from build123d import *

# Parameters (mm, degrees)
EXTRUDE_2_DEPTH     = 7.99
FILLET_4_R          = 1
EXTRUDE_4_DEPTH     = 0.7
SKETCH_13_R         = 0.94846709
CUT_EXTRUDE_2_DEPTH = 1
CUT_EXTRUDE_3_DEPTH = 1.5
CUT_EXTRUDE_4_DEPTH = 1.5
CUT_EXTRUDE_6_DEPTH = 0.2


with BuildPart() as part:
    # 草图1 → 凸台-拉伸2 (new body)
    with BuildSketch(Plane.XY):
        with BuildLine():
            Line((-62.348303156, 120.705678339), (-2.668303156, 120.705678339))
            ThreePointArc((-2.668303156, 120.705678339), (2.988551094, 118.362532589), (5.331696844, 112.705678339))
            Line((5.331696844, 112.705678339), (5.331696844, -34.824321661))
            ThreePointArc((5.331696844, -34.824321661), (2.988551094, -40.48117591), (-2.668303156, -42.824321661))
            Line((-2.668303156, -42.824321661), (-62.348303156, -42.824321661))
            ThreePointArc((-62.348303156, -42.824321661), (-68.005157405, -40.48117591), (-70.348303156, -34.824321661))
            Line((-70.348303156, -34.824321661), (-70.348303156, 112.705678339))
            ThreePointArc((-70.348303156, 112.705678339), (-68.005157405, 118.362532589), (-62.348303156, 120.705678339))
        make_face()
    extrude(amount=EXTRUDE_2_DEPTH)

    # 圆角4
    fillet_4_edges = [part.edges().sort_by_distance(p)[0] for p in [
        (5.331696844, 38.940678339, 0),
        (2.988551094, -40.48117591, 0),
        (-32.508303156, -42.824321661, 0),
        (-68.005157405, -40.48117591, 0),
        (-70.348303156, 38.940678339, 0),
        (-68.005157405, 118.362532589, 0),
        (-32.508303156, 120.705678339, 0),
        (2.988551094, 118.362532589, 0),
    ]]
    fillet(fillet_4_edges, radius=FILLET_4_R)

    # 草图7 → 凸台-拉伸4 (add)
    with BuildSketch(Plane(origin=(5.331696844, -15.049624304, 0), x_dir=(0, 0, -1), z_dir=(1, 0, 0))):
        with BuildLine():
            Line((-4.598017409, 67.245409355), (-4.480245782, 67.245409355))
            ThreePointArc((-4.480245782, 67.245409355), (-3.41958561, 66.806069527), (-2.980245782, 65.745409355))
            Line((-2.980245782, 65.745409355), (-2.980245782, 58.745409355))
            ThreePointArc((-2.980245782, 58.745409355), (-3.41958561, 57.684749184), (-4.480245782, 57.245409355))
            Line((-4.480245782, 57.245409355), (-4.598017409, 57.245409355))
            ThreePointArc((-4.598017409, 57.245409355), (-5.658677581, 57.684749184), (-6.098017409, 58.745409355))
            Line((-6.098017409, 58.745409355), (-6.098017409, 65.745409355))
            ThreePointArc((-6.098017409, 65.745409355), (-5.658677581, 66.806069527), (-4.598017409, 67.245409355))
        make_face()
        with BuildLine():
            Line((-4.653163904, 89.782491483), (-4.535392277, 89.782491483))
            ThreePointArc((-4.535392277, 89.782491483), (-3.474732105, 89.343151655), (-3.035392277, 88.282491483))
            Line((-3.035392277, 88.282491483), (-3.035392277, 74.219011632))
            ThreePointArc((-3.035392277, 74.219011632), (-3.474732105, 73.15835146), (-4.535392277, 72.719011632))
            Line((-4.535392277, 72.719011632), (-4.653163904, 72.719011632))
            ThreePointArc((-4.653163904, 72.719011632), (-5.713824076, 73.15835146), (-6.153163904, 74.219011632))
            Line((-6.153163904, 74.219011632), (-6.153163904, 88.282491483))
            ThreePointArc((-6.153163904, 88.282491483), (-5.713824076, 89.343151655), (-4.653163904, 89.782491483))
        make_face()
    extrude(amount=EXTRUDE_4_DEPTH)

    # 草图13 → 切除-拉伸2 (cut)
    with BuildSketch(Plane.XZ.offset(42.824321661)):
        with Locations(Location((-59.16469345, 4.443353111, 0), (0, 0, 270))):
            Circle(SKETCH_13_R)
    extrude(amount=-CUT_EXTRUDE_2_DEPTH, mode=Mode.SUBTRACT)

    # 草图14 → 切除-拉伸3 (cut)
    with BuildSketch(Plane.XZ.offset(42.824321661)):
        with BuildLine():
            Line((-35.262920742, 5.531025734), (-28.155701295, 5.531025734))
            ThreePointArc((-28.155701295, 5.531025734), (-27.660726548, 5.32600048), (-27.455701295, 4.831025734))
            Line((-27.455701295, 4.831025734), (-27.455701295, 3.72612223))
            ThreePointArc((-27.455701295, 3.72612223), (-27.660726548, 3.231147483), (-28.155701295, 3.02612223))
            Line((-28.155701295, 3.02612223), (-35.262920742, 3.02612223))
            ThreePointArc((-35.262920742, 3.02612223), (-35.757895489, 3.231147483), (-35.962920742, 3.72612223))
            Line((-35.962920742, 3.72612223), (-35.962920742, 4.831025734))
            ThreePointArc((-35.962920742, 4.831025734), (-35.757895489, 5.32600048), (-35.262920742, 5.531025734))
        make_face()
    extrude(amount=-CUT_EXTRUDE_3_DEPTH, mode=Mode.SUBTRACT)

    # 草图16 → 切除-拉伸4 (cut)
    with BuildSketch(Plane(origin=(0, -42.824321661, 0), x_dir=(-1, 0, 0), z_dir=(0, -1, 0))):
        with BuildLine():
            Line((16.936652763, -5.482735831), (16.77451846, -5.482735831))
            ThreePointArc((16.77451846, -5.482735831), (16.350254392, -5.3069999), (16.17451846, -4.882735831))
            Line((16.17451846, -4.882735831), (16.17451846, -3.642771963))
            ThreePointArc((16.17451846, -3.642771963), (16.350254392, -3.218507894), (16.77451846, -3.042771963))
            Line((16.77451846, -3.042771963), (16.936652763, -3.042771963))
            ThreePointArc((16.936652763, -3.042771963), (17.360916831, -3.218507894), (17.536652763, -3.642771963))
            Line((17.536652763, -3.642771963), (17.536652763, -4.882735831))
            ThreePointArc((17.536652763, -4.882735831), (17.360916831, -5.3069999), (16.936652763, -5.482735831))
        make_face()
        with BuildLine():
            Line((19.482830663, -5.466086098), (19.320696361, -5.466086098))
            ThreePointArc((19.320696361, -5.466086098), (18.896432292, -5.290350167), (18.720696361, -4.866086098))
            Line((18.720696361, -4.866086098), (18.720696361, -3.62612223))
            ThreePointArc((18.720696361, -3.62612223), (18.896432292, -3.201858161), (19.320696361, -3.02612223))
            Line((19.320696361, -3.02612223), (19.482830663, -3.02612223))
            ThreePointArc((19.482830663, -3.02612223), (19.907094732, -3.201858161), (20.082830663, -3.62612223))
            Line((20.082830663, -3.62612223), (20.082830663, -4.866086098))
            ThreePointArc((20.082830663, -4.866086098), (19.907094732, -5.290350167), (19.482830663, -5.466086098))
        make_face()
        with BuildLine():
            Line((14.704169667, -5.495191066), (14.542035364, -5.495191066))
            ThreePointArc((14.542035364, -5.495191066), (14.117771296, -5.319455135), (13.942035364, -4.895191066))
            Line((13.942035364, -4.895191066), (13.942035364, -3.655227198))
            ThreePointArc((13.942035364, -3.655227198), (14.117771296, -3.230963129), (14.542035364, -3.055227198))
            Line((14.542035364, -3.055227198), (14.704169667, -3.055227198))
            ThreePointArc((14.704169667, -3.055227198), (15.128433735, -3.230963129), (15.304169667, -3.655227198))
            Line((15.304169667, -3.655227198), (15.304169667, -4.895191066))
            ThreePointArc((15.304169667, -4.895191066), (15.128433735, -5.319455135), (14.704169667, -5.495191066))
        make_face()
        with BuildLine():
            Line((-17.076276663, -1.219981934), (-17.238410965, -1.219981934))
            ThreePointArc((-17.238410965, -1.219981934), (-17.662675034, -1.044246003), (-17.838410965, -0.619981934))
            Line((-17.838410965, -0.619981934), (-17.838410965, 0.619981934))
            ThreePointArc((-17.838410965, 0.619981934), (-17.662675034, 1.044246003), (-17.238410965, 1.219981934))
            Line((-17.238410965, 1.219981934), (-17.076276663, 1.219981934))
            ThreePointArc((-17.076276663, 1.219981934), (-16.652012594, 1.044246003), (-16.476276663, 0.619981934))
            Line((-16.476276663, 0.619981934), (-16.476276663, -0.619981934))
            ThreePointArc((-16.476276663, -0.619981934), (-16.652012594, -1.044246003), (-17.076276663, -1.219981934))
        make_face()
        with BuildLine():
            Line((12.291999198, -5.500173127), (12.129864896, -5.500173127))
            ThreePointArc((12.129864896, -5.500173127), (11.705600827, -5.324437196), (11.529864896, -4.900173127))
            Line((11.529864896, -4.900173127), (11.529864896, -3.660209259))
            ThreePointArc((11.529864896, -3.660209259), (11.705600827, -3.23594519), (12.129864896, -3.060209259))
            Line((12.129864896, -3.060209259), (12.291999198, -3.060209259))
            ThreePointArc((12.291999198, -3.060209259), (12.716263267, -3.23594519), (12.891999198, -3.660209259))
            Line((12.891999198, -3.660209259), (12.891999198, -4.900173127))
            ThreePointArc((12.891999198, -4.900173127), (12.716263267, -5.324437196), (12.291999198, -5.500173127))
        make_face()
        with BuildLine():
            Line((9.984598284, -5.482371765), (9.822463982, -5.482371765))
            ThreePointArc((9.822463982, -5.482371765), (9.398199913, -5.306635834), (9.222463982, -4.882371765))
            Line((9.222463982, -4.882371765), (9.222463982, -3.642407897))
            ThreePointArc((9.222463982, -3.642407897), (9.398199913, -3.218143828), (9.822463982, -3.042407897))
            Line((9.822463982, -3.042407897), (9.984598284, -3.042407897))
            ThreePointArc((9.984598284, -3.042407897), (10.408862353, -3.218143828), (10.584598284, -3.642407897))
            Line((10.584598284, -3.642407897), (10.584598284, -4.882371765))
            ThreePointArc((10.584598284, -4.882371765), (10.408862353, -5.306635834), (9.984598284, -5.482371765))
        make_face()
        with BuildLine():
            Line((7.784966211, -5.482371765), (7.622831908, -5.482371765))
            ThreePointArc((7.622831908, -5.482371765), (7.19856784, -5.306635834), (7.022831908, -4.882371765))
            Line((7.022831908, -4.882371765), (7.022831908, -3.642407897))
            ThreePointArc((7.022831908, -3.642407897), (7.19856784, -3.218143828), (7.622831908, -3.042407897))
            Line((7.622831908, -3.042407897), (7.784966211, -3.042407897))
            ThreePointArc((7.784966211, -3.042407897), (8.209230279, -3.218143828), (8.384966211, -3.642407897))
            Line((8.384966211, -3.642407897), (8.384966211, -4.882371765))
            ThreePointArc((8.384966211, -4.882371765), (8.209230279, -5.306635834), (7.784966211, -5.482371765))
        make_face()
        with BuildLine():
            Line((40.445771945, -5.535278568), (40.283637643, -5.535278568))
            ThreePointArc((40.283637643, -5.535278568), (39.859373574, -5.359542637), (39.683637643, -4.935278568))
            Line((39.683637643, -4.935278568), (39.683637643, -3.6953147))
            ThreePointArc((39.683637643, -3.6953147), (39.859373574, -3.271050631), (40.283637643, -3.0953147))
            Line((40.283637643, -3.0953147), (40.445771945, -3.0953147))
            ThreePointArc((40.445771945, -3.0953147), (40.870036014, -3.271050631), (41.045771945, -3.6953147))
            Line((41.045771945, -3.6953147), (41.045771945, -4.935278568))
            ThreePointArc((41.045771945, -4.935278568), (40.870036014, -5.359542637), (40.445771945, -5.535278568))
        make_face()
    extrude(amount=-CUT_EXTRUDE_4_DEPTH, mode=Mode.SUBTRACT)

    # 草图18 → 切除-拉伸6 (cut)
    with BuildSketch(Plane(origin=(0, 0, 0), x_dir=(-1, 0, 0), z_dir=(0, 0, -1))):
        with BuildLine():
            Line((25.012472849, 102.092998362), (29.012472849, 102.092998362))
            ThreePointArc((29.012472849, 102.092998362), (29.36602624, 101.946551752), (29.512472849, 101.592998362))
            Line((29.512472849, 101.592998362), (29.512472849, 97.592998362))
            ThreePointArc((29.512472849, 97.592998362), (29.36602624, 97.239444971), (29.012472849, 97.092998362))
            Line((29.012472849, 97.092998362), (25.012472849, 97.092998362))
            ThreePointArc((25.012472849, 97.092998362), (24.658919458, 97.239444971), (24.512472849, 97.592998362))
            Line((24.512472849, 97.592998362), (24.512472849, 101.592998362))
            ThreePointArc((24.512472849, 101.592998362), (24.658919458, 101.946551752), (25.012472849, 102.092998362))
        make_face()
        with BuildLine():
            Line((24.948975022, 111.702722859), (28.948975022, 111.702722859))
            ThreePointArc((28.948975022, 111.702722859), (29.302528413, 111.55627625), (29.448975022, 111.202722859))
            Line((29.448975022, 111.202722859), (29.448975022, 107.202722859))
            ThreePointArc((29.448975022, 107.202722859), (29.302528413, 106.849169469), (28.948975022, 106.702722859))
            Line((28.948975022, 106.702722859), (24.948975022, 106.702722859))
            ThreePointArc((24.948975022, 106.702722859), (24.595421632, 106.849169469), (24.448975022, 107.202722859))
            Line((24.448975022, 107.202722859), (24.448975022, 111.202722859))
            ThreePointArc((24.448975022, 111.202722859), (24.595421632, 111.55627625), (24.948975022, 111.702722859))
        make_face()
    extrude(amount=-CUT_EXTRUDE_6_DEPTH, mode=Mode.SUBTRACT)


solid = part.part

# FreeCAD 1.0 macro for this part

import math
import FreeCAD as App
import Part
import Sketcher
from FreeCAD import Vector
Q = App.Units.Quantity


def edges_at(feature, points):
    """Names of the edges that pass closest to the given points."""
    edges = feature.Shape.Edges
    near = lambda p: min(range(len(edges)), key=lambda i: edges[i].distToShape(Part.Vertex(*p))[0])
    return sorted({f"Edge{near(p) + 1}" for p in points})

doc = App.newDocument("Part")
params = doc.addObject("Spreadsheet::Sheet", "Params")
for row, (alias, value) in enumerate([
    ("sketch1_radius", "8 mm"),
    ("sketch1_width", "59.68 mm"),
    ("sketch1_height", "147.53 mm"),
    ("pad1_length", "7.99 mm"),
    ("fillet_radius", "1 mm"),
    ("sketch2_radius", "1.5 mm"),
    ("sketch2_width", "7 mm"),
    ("pad2_length", "0.7 mm"),
    ("pocket1_length", "1 mm"),
    ("sketch4_radius", "0.7 mm"),
    ("pocket2_length", "1.5 mm"),
    ("sketch5_radius", "0.6 mm"),
    ("pocket3_length", "1.5 mm"),
    ("sketch6_radius", "0.5 mm"),
    ("sketch6_width", "4 mm"),
    ("pocket4_length", "0.2 mm"),
], start=1):
    params.set(f"A{row}", alias)
    params.set(f"B{row}", "=" + value)
    params.setAlias(f"B{row}", alias)

body = doc.addObject("PartDesign::Body", "Body")

# Sketch on XY plane
sketch1 = doc.addObject("Sketcher::SketchObject", "Sketch")
body.addObject(sketch1)
sketch1.AttachmentSupport = (doc.XY_Plane, [""])
sketch1.MapMode = "FlatFace"
sketch1.addGeometry([
    Part.LineSegment(Vector(-2.668303, 120.705678, 0), Vector(-62.348303, 120.705678, 0)),  # 0
    Part.ArcOfCircle(Part.Circle(Vector(-62.348303, 112.705678, 0), Vector(0, 0, 1), 8), math.radians(90), math.radians(180)),  # 1
    Part.LineSegment(Vector(-70.348303, 112.705678, 0), Vector(-70.348303, -34.824322, 0)),  # 2
    Part.ArcOfCircle(Part.Circle(Vector(-62.348303, -34.824322, 0), Vector(0, 0, 1), 8), math.radians(-180), math.radians(-90)),  # 3
    Part.LineSegment(Vector(-62.348303, -42.824322, 0), Vector(-2.668303, -42.824322, 0)),  # 4
    Part.ArcOfCircle(Part.Circle(Vector(-2.668303, -34.824322, 0), Vector(0, 0, 1), 8), math.radians(-90), math.radians(0)),  # 5
    Part.LineSegment(Vector(5.331697, -34.824322, 0), Vector(5.331697, 112.705678, 0)),  # 6
    Part.ArcOfCircle(Part.Circle(Vector(-2.668303, 112.705678, 0), Vector(0, 0, 1), 8), math.radians(0), math.radians(90)),  # 7
], False)
sketch1.addConstraint([
    Sketcher.Constraint("Tangent", 0, 2, 1, 1),
    Sketcher.Constraint("Tangent", 1, 2, 2, 1),
    Sketcher.Constraint("Tangent", 2, 2, 3, 1),
    Sketcher.Constraint("Tangent", 3, 2, 4, 1),
    Sketcher.Constraint("Tangent", 4, 2, 5, 1),
    Sketcher.Constraint("Tangent", 5, 2, 6, 1),
    Sketcher.Constraint("Tangent", 6, 2, 7, 1),
    Sketcher.Constraint("Tangent", 7, 2, 0, 1),
    Sketcher.Constraint("Horizontal", 0),
    Sketcher.Constraint("Vertical", 2),
    Sketcher.Constraint("Horizontal", 4),
    Sketcher.Constraint("Vertical", 6),
    Sketcher.Constraint("Equal", 1, 3),
    Sketcher.Constraint("Equal", 3, 5),
    Sketcher.Constraint("Equal", 5, 7),
    Sketcher.Constraint("Radius", 1, Q("8 mm")),
    Sketcher.Constraint("DistanceX", 0, 2, 0, 1, Q("59.68 mm")),
    Sketcher.Constraint("DistanceY", 2, 2, 2, 1, Q("147.53 mm")),
    Sketcher.Constraint("DistanceY", -1, 1, 1, 3, Q("112.705678 mm")),
    Sketcher.Constraint("DistanceX", 1, 3, -1, 1, Q("62.348303 mm")),
])
sketch1.setExpression("Constraints[15]", "Params.sketch1_radius")
sketch1.setExpression("Constraints[16]", "Params.sketch1_width")
sketch1.setExpression("Constraints[17]", "Params.sketch1_height")
pad1 = doc.addObject("PartDesign::Pad", "Pad")
body.addObject(pad1)
pad1.Profile = sketch1
pad1.setExpression("Length", "Params.pad1_length")
doc.recompute()

fillet = doc.addObject("PartDesign::Fillet", "Fillet")
body.addObject(fillet)
fillet.Base = (pad1, edges_at(pad1, [
    (5.332, 38.941, 0),
    (2.989, -40.481, 0),
    (-32.508, -42.824, 0),
    (-68.005, -40.481, 0),
    (-70.348, 38.941, 0),
    (-68.005, 118.363, 0),
    (-32.508, 120.706, 0),
    (2.989, 118.363, 0),
]))
fillet.setExpression("Radius", "Params.fillet_radius")

# Sketch on YZ plane
sketch2 = doc.addObject("Sketcher::SketchObject", "Sketch001")
body.addObject(sketch2)
sketch2.AttachmentSupport = (doc.YZ_Plane, [""])
sketch2.MapMode = "FlatFace"
sketch2.AttachmentOffset = App.Placement(Vector(0, 0, 5.331697), App.Rotation())
sketch2.addGeometry([
    Part.LineSegment(Vector(52.195785, 4.480246, 0), Vector(52.195785, 4.598017, 0)),  # 0
    Part.ArcOfCircle(Part.Circle(Vector(50.695785, 4.598017, 0), Vector(0, 0, 1), 1.5), math.radians(0), math.radians(90)),  # 1
    Part.LineSegment(Vector(50.695785, 6.098017, 0), Vector(43.695785, 6.098017, 0)),  # 2
    Part.ArcOfCircle(Part.Circle(Vector(43.695785, 4.598017, 0), Vector(0, 0, 1), 1.5), math.radians(90), math.radians(180)),  # 3
    Part.LineSegment(Vector(42.195785, 4.598017, 0), Vector(42.195785, 4.480246, 0)),  # 4
    Part.ArcOfCircle(Part.Circle(Vector(43.695785, 4.480246, 0), Vector(0, 0, 1), 1.5), math.radians(-180), math.radians(-90)),  # 5
    Part.LineSegment(Vector(43.695785, 2.980246, 0), Vector(50.695785, 2.980246, 0)),  # 6
    Part.ArcOfCircle(Part.Circle(Vector(50.695785, 4.480246, 0), Vector(0, 0, 1), 1.5), math.radians(-90), math.radians(0)),  # 7
    Part.LineSegment(Vector(74.732867, 4.535392, 0), Vector(74.732867, 4.653164, 0)),  # 8
    Part.ArcOfCircle(Part.Circle(Vector(73.232867, 4.653164, 0), Vector(0, 0, 1), 1.5), math.radians(0), math.radians(90)),  # 9
    Part.LineSegment(Vector(73.232867, 6.153164, 0), Vector(59.169387, 6.153164, 0)),  # 10
    Part.ArcOfCircle(Part.Circle(Vector(59.169387, 4.653164, 0), Vector(0, 0, 1), 1.5), math.radians(90), math.radians(180)),  # 11
    Part.LineSegment(Vector(57.669387, 4.653164, 0), Vector(57.669387, 4.535392, 0)),  # 12
    Part.ArcOfCircle(Part.Circle(Vector(59.169387, 4.535392, 0), Vector(0, 0, 1), 1.5), math.radians(180), math.radians(270)),  # 13
    Part.LineSegment(Vector(59.169387, 3.035392, 0), Vector(73.232867, 3.035392, 0)),  # 14
    Part.ArcOfCircle(Part.Circle(Vector(73.232867, 4.535392, 0), Vector(0, 0, 1), 1.5), math.radians(-90), math.radians(0)),  # 15
], False)
sketch2.addConstraint([
    Sketcher.Constraint("Tangent", 0, 2, 1, 1),
    Sketcher.Constraint("Tangent", 1, 2, 2, 1),
    Sketcher.Constraint("Tangent", 2, 2, 3, 1),
    Sketcher.Constraint("Tangent", 3, 2, 4, 1),
    Sketcher.Constraint("Tangent", 4, 2, 5, 1),
    Sketcher.Constraint("Tangent", 5, 2, 6, 1),
    Sketcher.Constraint("Tangent", 6, 2, 7, 1),
    Sketcher.Constraint("Tangent", 7, 2, 0, 1),
    Sketcher.Constraint("Tangent", 8, 2, 9, 1),
    Sketcher.Constraint("Tangent", 9, 2, 10, 1),
    Sketcher.Constraint("Tangent", 10, 2, 11, 1),
    Sketcher.Constraint("Tangent", 11, 2, 12, 1),
    Sketcher.Constraint("Tangent", 12, 2, 13, 1),
    Sketcher.Constraint("Tangent", 13, 2, 14, 1),
    Sketcher.Constraint("Tangent", 14, 2, 15, 1),
    Sketcher.Constraint("Tangent", 15, 2, 8, 1),
    Sketcher.Constraint("Vertical", 0),
    Sketcher.Constraint("Horizontal", 2),
    Sketcher.Constraint("Vertical", 4),
    Sketcher.Constraint("Horizontal", 6),
    Sketcher.Constraint("Vertical", 8),
    Sketcher.Constraint("Horizontal", 10),
    Sketcher.Constraint("Vertical", 12),
    Sketcher.Constraint("Horizontal", 14),
    Sketcher.Constraint("Equal", 1, 3),
    Sketcher.Constraint("Equal", 3, 5),
    Sketcher.Constraint("Equal", 5, 7),
    Sketcher.Constraint("Equal", 7, 9),
    Sketcher.Constraint("Equal", 9, 11),
    Sketcher.Constraint("Equal", 11, 13),
    Sketcher.Constraint("Equal", 13, 15),
    Sketcher.Constraint("Equal", 4, 8),
    Sketcher.Constraint("Radius", 1, Q("1.5 mm")),
    Sketcher.Constraint("DistanceX", 2, 2, 2, 1, Q("7 mm")),
    Sketcher.Constraint("DistanceX", 10, 2, 10, 1, Q("14.06348 mm")),
    Sketcher.Constraint("DistanceY", 0, 1, 0, 2, Q("0.117772 mm")),
    Sketcher.Constraint("DistanceY", 7, 3, 9, 3, Q("0.172918 mm")),
    Sketcher.Constraint("DistanceX", -1, 1, 1, 3, Q("50.695785 mm")),
    Sketcher.Constraint("DistanceY", -1, 1, 1, 3, Q("4.598017 mm")),
    Sketcher.Constraint("DistanceX", -1, 1, 9, 3, Q("73.232867 mm")),
])
sketch2.setExpression("Constraints[32]", "Params.sketch2_radius")
sketch2.setExpression("Constraints[33]", "Params.sketch2_width")
pad2 = doc.addObject("PartDesign::Pad", "Pad001")
body.addObject(pad2)
pad2.Profile = sketch2
pad2.setExpression("Length", "Params.pad2_length")

# Sketch on XZ plane
sketch3 = doc.addObject("Sketcher::SketchObject", "Sketch002")
body.addObject(sketch3)
sketch3.AttachmentSupport = (doc.XZ_Plane, [""])
sketch3.MapMode = "FlatFace"
sketch3.AttachmentOffset = App.Placement(Vector(0, 0, 42.824322), App.Rotation())
sketch3.addGeometry(Part.Circle(Vector(-59.164693, 4.443353, 0), Vector(0, 0, 1), 0.948467), False)
sketch3.addConstraint([
    Sketcher.Constraint("Diameter", 0, Q("1.896934 mm")),
    Sketcher.Constraint("DistanceX", 0, 3, -1, 1, Q("59.164693 mm")),
    Sketcher.Constraint("DistanceY", -1, 1, 0, 3, Q("4.443353 mm")),
])
pocket1 = doc.addObject("PartDesign::Pocket", "Pocket")
body.addObject(pocket1)
pocket1.Profile = sketch3
pocket1.setExpression("Length", "Params.pocket1_length")

# Sketch on XZ plane
sketch4 = doc.addObject("Sketcher::SketchObject", "Sketch003")
body.addObject(sketch4)
sketch4.AttachmentSupport = (doc.XZ_Plane, [""])
sketch4.MapMode = "FlatFace"
sketch4.AttachmentOffset = App.Placement(Vector(0, 0, 42.824322), App.Rotation())
sketch4.addGeometry([
    Part.LineSegment(Vector(-28.155701, 5.531026, 0), Vector(-35.262921, 5.531026, 0)),  # 0
    Part.ArcOfCircle(Part.Circle(Vector(-35.262921, 4.831026, 0), Vector(0, 0, 1), 0.7), math.radians(90), math.radians(180)),  # 1
    Part.LineSegment(Vector(-35.962921, 4.831026, 0), Vector(-35.962921, 3.726122, 0)),  # 2
    Part.ArcOfCircle(Part.Circle(Vector(-35.262921, 3.726122, 0), Vector(0, 0, 1), 0.7), math.radians(180), math.radians(270)),  # 3
    Part.LineSegment(Vector(-35.262921, 3.026122, 0), Vector(-28.155701, 3.026122, 0)),  # 4
    Part.ArcOfCircle(Part.Circle(Vector(-28.155701, 3.726122, 0), Vector(0, 0, 1), 0.7), math.radians(-90), math.radians(0)),  # 5
    Part.LineSegment(Vector(-27.455701, 3.726122, 0), Vector(-27.455701, 4.831026, 0)),  # 6
    Part.ArcOfCircle(Part.Circle(Vector(-28.155701, 4.831026, 0), Vector(0, 0, 1), 0.7), math.radians(0), math.radians(90)),  # 7
], False)
sketch4.addConstraint([
    Sketcher.Constraint("Tangent", 0, 2, 1, 1),
    Sketcher.Constraint("Tangent", 1, 2, 2, 1),
    Sketcher.Constraint("Tangent", 2, 2, 3, 1),
    Sketcher.Constraint("Tangent", 3, 2, 4, 1),
    Sketcher.Constraint("Tangent", 4, 2, 5, 1),
    Sketcher.Constraint("Tangent", 5, 2, 6, 1),
    Sketcher.Constraint("Tangent", 6, 2, 7, 1),
    Sketcher.Constraint("Tangent", 7, 2, 0, 1),
    Sketcher.Constraint("Horizontal", 0),
    Sketcher.Constraint("Vertical", 2),
    Sketcher.Constraint("Horizontal", 4),
    Sketcher.Constraint("Vertical", 6),
    Sketcher.Constraint("Equal", 1, 3),
    Sketcher.Constraint("Equal", 3, 5),
    Sketcher.Constraint("Equal", 5, 7),
    Sketcher.Constraint("Radius", 1, Q("0.7 mm")),
    Sketcher.Constraint("DistanceX", 0, 2, 0, 1, Q("7.107219 mm")),
    Sketcher.Constraint("DistanceX", 5, 3, -1, 1, Q("28.155701 mm")),
    Sketcher.Constraint("DistanceY", 2, 2, 2, 1, Q("1.104904 mm")),
    Sketcher.Constraint("DistanceY", -1, 1, 1, 3, Q("4.831026 mm")),
])
sketch4.setExpression("Constraints[15]", "Params.sketch4_radius")
pocket2 = doc.addObject("PartDesign::Pocket", "Pocket001")
body.addObject(pocket2)
pocket2.Profile = sketch4
pocket2.setExpression("Length", "Params.pocket2_length")

# Sketch on XZ plane
sketch5 = doc.addObject("Sketcher::SketchObject", "Sketch004")
body.addObject(sketch5)
sketch5.AttachmentSupport = (doc.XZ_Plane, [""])
sketch5.MapMode = "FlatFace"
sketch5.AttachmentOffset = App.Placement(Vector(0, 0, 42.824322), App.Rotation())
sketch5.addGeometry([
    Part.LineSegment(Vector(-16.774518, 5.482736, 0), Vector(-16.936653, 5.482736, 0)),  # 0
    Part.ArcOfCircle(Part.Circle(Vector(-16.936653, 4.882736, 0), Vector(0, 0, 1), 0.6), math.radians(90), math.radians(180)),  # 1
    Part.LineSegment(Vector(-17.536653, 4.882736, 0), Vector(-17.536653, 3.642772, 0)),  # 2
    Part.ArcOfCircle(Part.Circle(Vector(-16.936653, 3.642772, 0), Vector(0, 0, 1), 0.6), math.radians(-180), math.radians(-90)),  # 3
    Part.LineSegment(Vector(-16.936653, 3.042772, 0), Vector(-16.774518, 3.042772, 0)),  # 4
    Part.ArcOfCircle(Part.Circle(Vector(-16.774518, 3.642772, 0), Vector(0, 0, 1), 0.6), math.radians(-90), math.radians(0)),  # 5
    Part.LineSegment(Vector(-16.174518, 3.642772, 0), Vector(-16.174518, 4.882736, 0)),  # 6
    Part.ArcOfCircle(Part.Circle(Vector(-16.774518, 4.882736, 0), Vector(0, 0, 1), 0.6), math.radians(0), math.radians(90)),  # 7
    Part.LineSegment(Vector(-19.320696, 5.466086, 0), Vector(-19.482831, 5.466086, 0)),  # 8
    Part.ArcOfCircle(Part.Circle(Vector(-19.482831, 4.866086, 0), Vector(0, 0, 1), 0.6), math.radians(90), math.radians(180)),  # 9
    Part.LineSegment(Vector(-20.082831, 4.866086, 0), Vector(-20.082831, 3.626122, 0)),  # 10
    Part.ArcOfCircle(Part.Circle(Vector(-19.482831, 3.626122, 0), Vector(0, 0, 1), 0.6), math.radians(180), math.radians(270)),  # 11
    Part.LineSegment(Vector(-19.482831, 3.026122, 0), Vector(-19.320696, 3.026122, 0)),  # 12
    Part.ArcOfCircle(Part.Circle(Vector(-19.320696, 3.626122, 0), Vector(0, 0, 1), 0.6), math.radians(-90), math.radians(0)),  # 13
    Part.LineSegment(Vector(-18.720696, 3.626122, 0), Vector(-18.720696, 4.866086, 0)),  # 14
    Part.ArcOfCircle(Part.Circle(Vector(-19.320696, 4.866086, 0), Vector(0, 0, 1), 0.6), math.radians(0), math.radians(90)),  # 15
    Part.LineSegment(Vector(-14.542035, 5.495191, 0), Vector(-14.70417, 5.495191, 0)),  # 16
    Part.ArcOfCircle(Part.Circle(Vector(-14.70417, 4.895191, 0), Vector(0, 0, 1), 0.6), math.radians(90), math.radians(180)),  # 17
    Part.LineSegment(Vector(-15.30417, 4.895191, 0), Vector(-15.30417, 3.655227, 0)),  # 18
    Part.ArcOfCircle(Part.Circle(Vector(-14.70417, 3.655227, 0), Vector(0, 0, 1), 0.6), math.radians(-180), math.radians(-90)),  # 19
    Part.LineSegment(Vector(-14.70417, 3.055227, 0), Vector(-14.542035, 3.055227, 0)),  # 20
    Part.ArcOfCircle(Part.Circle(Vector(-14.542035, 3.655227, 0), Vector(0, 0, 1), 0.6), math.radians(-90), math.radians(0)),  # 21
    Part.LineSegment(Vector(-13.942035, 3.655227, 0), Vector(-13.942035, 4.895191, 0)),  # 22
    Part.ArcOfCircle(Part.Circle(Vector(-14.542035, 4.895191, 0), Vector(0, 0, 1), 0.6), math.radians(0), math.radians(90)),  # 23
    Part.LineSegment(Vector(17.238411, 1.219982, 0), Vector(17.076277, 1.219982, 0)),  # 24
    Part.ArcOfCircle(Part.Circle(Vector(17.076277, 0.619982, 0), Vector(0, 0, 1), 0.6), math.radians(90), math.radians(180)),  # 25
    Part.LineSegment(Vector(16.476277, 0.619982, 0), Vector(16.476277, -0.619982, 0)),  # 26
    Part.ArcOfCircle(Part.Circle(Vector(17.076277, -0.619982, 0), Vector(0, 0, 1), 0.6), math.radians(180), math.radians(270)),  # 27
    Part.LineSegment(Vector(17.076277, -1.219982, 0), Vector(17.238411, -1.219982, 0)),  # 28
    Part.ArcOfCircle(Part.Circle(Vector(17.238411, -0.619982, 0), Vector(0, 0, 1), 0.6), math.radians(-90), math.radians(0)),  # 29
    Part.LineSegment(Vector(17.838411, -0.619982, 0), Vector(17.838411, 0.619982, 0)),  # 30
    Part.ArcOfCircle(Part.Circle(Vector(17.238411, 0.619982, 0), Vector(0, 0, 1), 0.6), math.radians(0), math.radians(90)),  # 31
    Part.LineSegment(Vector(-12.129865, 5.500173, 0), Vector(-12.291999, 5.500173, 0)),  # 32
    Part.ArcOfCircle(Part.Circle(Vector(-12.291999, 4.900173, 0), Vector(0, 0, 1), 0.6), math.radians(90), math.radians(180)),  # 33
    Part.LineSegment(Vector(-12.891999, 4.900173, 0), Vector(-12.891999, 3.660209, 0)),  # 34
    Part.ArcOfCircle(Part.Circle(Vector(-12.291999, 3.660209, 0), Vector(0, 0, 1), 0.6), math.radians(180), math.radians(270)),  # 35
    Part.LineSegment(Vector(-12.291999, 3.060209, 0), Vector(-12.129865, 3.060209, 0)),  # 36
    Part.ArcOfCircle(Part.Circle(Vector(-12.129865, 3.660209, 0), Vector(0, 0, 1), 0.6), math.radians(-90), math.radians(0)),  # 37
    Part.LineSegment(Vector(-11.529865, 3.660209, 0), Vector(-11.529865, 4.900173, 0)),  # 38
    Part.ArcOfCircle(Part.Circle(Vector(-12.129865, 4.900173, 0), Vector(0, 0, 1), 0.6), math.radians(0), math.radians(90)),  # 39
    Part.LineSegment(Vector(-9.822464, 5.482372, 0), Vector(-9.984598, 5.482372, 0)),  # 40
    Part.ArcOfCircle(Part.Circle(Vector(-9.984598, 4.882372, 0), Vector(0, 0, 1), 0.6), math.radians(90), math.radians(180)),  # 41
    Part.LineSegment(Vector(-10.584598, 4.882372, 0), Vector(-10.584598, 3.642408, 0)),  # 42
    Part.ArcOfCircle(Part.Circle(Vector(-9.984598, 3.642408, 0), Vector(0, 0, 1), 0.6), math.radians(180), math.radians(270)),  # 43
    Part.LineSegment(Vector(-9.984598, 3.042408, 0), Vector(-9.822464, 3.042408, 0)),  # 44
    Part.ArcOfCircle(Part.Circle(Vector(-9.822464, 3.642408, 0), Vector(0, 0, 1), 0.6), math.radians(-90), math.radians(0)),  # 45
    Part.LineSegment(Vector(-9.222464, 3.642408, 0), Vector(-9.222464, 4.882372, 0)),  # 46
    Part.ArcOfCircle(Part.Circle(Vector(-9.822464, 4.882372, 0), Vector(0, 0, 1), 0.6), math.radians(0), math.radians(90)),  # 47
    Part.LineSegment(Vector(-7.622832, 5.482372, 0), Vector(-7.784966, 5.482372, 0)),  # 48
    Part.ArcOfCircle(Part.Circle(Vector(-7.784966, 4.882372, 0), Vector(0, 0, 1), 0.6), math.radians(90), math.radians(180)),  # 49
    Part.LineSegment(Vector(-8.384966, 4.882372, 0), Vector(-8.384966, 3.642408, 0)),  # 50
    Part.ArcOfCircle(Part.Circle(Vector(-7.784966, 3.642408, 0), Vector(0, 0, 1), 0.6), math.radians(-180), math.radians(-90)),  # 51
    Part.LineSegment(Vector(-7.784966, 3.042408, 0), Vector(-7.622832, 3.042408, 0)),  # 52
    Part.ArcOfCircle(Part.Circle(Vector(-7.622832, 3.642408, 0), Vector(0, 0, 1), 0.6), math.radians(-90), math.radians(0)),  # 53
    Part.LineSegment(Vector(-7.022832, 3.642408, 0), Vector(-7.022832, 4.882372, 0)),  # 54
    Part.ArcOfCircle(Part.Circle(Vector(-7.622832, 4.882372, 0), Vector(0, 0, 1), 0.6), math.radians(0), math.radians(90)),  # 55
    Part.LineSegment(Vector(-40.283638, 5.535279, 0), Vector(-40.445772, 5.535279, 0)),  # 56
    Part.ArcOfCircle(Part.Circle(Vector(-40.445772, 4.935279, 0), Vector(0, 0, 1), 0.6), math.radians(90), math.radians(180)),  # 57
    Part.LineSegment(Vector(-41.045772, 4.935279, 0), Vector(-41.045772, 3.695315, 0)),  # 58
    Part.ArcOfCircle(Part.Circle(Vector(-40.445772, 3.695315, 0), Vector(0, 0, 1), 0.6), math.radians(180), math.radians(270)),  # 59
    Part.LineSegment(Vector(-40.445772, 3.095315, 0), Vector(-40.283638, 3.095315, 0)),  # 60
    Part.ArcOfCircle(Part.Circle(Vector(-40.283638, 3.695315, 0), Vector(0, 0, 1), 0.6), math.radians(-90), math.radians(0)),  # 61
    Part.LineSegment(Vector(-39.683638, 3.695315, 0), Vector(-39.683638, 4.935279, 0)),  # 62
    Part.ArcOfCircle(Part.Circle(Vector(-40.283638, 4.935279, 0), Vector(0, 0, 1), 0.6), math.radians(0), math.radians(90)),  # 63
], False)
sketch5.addConstraint([
    Sketcher.Constraint("Tangent", 0, 2, 1, 1),
    Sketcher.Constraint("Tangent", 1, 2, 2, 1),
    Sketcher.Constraint("Tangent", 2, 2, 3, 1),
    Sketcher.Constraint("Tangent", 3, 2, 4, 1),
    Sketcher.Constraint("Tangent", 4, 2, 5, 1),
    Sketcher.Constraint("Tangent", 5, 2, 6, 1),
    Sketcher.Constraint("Tangent", 6, 2, 7, 1),
    Sketcher.Constraint("Tangent", 7, 2, 0, 1),
    Sketcher.Constraint("Tangent", 8, 2, 9, 1),
    Sketcher.Constraint("Tangent", 9, 2, 10, 1),
    Sketcher.Constraint("Tangent", 10, 2, 11, 1),
    Sketcher.Constraint("Tangent", 11, 2, 12, 1),
    Sketcher.Constraint("Tangent", 12, 2, 13, 1),
    Sketcher.Constraint("Tangent", 13, 2, 14, 1),
    Sketcher.Constraint("Tangent", 14, 2, 15, 1),
    Sketcher.Constraint("Tangent", 15, 2, 8, 1),
    Sketcher.Constraint("Tangent", 16, 2, 17, 1),
    Sketcher.Constraint("Tangent", 17, 2, 18, 1),
    Sketcher.Constraint("Tangent", 18, 2, 19, 1),
    Sketcher.Constraint("Tangent", 19, 2, 20, 1),
    Sketcher.Constraint("Tangent", 20, 2, 21, 1),
    Sketcher.Constraint("Tangent", 21, 2, 22, 1),
    Sketcher.Constraint("Tangent", 22, 2, 23, 1),
    Sketcher.Constraint("Tangent", 23, 2, 16, 1),
    Sketcher.Constraint("Tangent", 24, 2, 25, 1),
    Sketcher.Constraint("Tangent", 25, 2, 26, 1),
    Sketcher.Constraint("Tangent", 26, 2, 27, 1),
    Sketcher.Constraint("Tangent", 27, 2, 28, 1),
    Sketcher.Constraint("Tangent", 28, 2, 29, 1),
    Sketcher.Constraint("Tangent", 29, 2, 30, 1),
    Sketcher.Constraint("Tangent", 30, 2, 31, 1),
    Sketcher.Constraint("Tangent", 31, 2, 24, 1),
    Sketcher.Constraint("Tangent", 32, 2, 33, 1),
    Sketcher.Constraint("Tangent", 33, 2, 34, 1),
    Sketcher.Constraint("Tangent", 34, 2, 35, 1),
    Sketcher.Constraint("Tangent", 35, 2, 36, 1),
    Sketcher.Constraint("Tangent", 36, 2, 37, 1),
    Sketcher.Constraint("Tangent", 37, 2, 38, 1),
    Sketcher.Constraint("Tangent", 38, 2, 39, 1),
    Sketcher.Constraint("Tangent", 39, 2, 32, 1),
    Sketcher.Constraint("Tangent", 40, 2, 41, 1),
    Sketcher.Constraint("Tangent", 41, 2, 42, 1),
    Sketcher.Constraint("Tangent", 42, 2, 43, 1),
    Sketcher.Constraint("Tangent", 43, 2, 44, 1),
    Sketcher.Constraint("Tangent", 44, 2, 45, 1),
    Sketcher.Constraint("Tangent", 45, 2, 46, 1),
    Sketcher.Constraint("Tangent", 46, 2, 47, 1),
    Sketcher.Constraint("Tangent", 47, 2, 40, 1),
    Sketcher.Constraint("Tangent", 48, 2, 49, 1),
    Sketcher.Constraint("Tangent", 49, 2, 50, 1),
    Sketcher.Constraint("Tangent", 50, 2, 51, 1),
    Sketcher.Constraint("Tangent", 51, 2, 52, 1),
    Sketcher.Constraint("Tangent", 52, 2, 53, 1),
    Sketcher.Constraint("Tangent", 53, 2, 54, 1),
    Sketcher.Constraint("Tangent", 54, 2, 55, 1),
    Sketcher.Constraint("Tangent", 55, 2, 48, 1),
    Sketcher.Constraint("Tangent", 56, 2, 57, 1),
    Sketcher.Constraint("Tangent", 57, 2, 58, 1),
    Sketcher.Constraint("Tangent", 58, 2, 59, 1),
    Sketcher.Constraint("Tangent", 59, 2, 60, 1),
    Sketcher.Constraint("Tangent", 60, 2, 61, 1),
    Sketcher.Constraint("Tangent", 61, 2, 62, 1),
    Sketcher.Constraint("Tangent", 62, 2, 63, 1),
    Sketcher.Constraint("Tangent", 63, 2, 56, 1),
    Sketcher.Constraint("Horizontal", 0),
    Sketcher.Constraint("Vertical", 2),
    Sketcher.Constraint("Horizontal", 4),
    Sketcher.Constraint("Vertical", 6),
    Sketcher.Constraint("Horizontal", 8),
    Sketcher.Constraint("Vertical", 10),
    Sketcher.Constraint("Horizontal", 12),
    Sketcher.Constraint("Vertical", 14),
    Sketcher.Constraint("Horizontal", 16),
    Sketcher.Constraint("Vertical", 18),
    Sketcher.Constraint("Horizontal", 20),
    Sketcher.Constraint("Vertical", 22),
    Sketcher.Constraint("Horizontal", 24),
    Sketcher.Constraint("Vertical", 26),
    Sketcher.Constraint("Horizontal", 28),
    Sketcher.Constraint("Vertical", 30),
    Sketcher.Constraint("Horizontal", 32),
    Sketcher.Constraint("Vertical", 34),
    Sketcher.Constraint("Horizontal", 36),
    Sketcher.Constraint("Vertical", 38),
    Sketcher.Constraint("Horizontal", 40),
    Sketcher.Constraint("Vertical", 42),
    Sketcher.Constraint("Horizontal", 44),
    Sketcher.Constraint("Vertical", 46),
    Sketcher.Constraint("Horizontal", 48),
    Sketcher.Constraint("Vertical", 50),
    Sketcher.Constraint("Horizontal", 52),
    Sketcher.Constraint("Vertical", 54),
    Sketcher.Constraint("Horizontal", 56),
    Sketcher.Constraint("Vertical", 58),
    Sketcher.Constraint("Horizontal", 60),
    Sketcher.Constraint("Vertical", 62),
    Sketcher.Constraint("Equal", 1, 3),
    Sketcher.Constraint("Equal", 3, 5),
    Sketcher.Constraint("Equal", 5, 7),
    Sketcher.Constraint("Equal", 7, 9),
    Sketcher.Constraint("Equal", 9, 11),
    Sketcher.Constraint("Equal", 11, 13),
    Sketcher.Constraint("Equal", 13, 15),
    Sketcher.Constraint("Equal", 15, 17),
    Sketcher.Constraint("Equal", 17, 19),
    Sketcher.Constraint("Equal", 19, 21),
    Sketcher.Constraint("Equal", 21, 23),
    Sketcher.Constraint("Equal", 23, 25),
    Sketcher.Constraint("Equal", 25, 27),
    Sketcher.Constraint("Equal", 27, 29),
    Sketcher.Constraint("Equal", 29, 31),
    Sketcher.Constraint("Equal", 31, 33),
    Sketcher.Constraint("Equal", 33, 35),
    Sketcher.Constraint("Equal", 35, 37),
    Sketcher.Constraint("Equal", 37, 39),
    Sketcher.Constraint("Equal", 39, 41),
    Sketcher.Constraint("Equal", 41, 43),
    Sketcher.Constraint("Equal", 43, 45),
    Sketcher.Constraint("Equal", 45, 47),
    Sketcher.Constraint("Equal", 47, 49),
    Sketcher.Constraint("Equal", 49, 51),
    Sketcher.Constraint("Equal", 51, 53),
    Sketcher.Constraint("Equal", 53, 55),
    Sketcher.Constraint("Equal", 55, 57),
    Sketcher.Constraint("Equal", 57, 59),
    Sketcher.Constraint("Equal", 59, 61),
    Sketcher.Constraint("Equal", 61, 63),
    Sketcher.Constraint("Horizontal", 47, 3, 49, 3),
    Sketcher.Constraint("Horizontal", 45, 3, 51, 3),
    Sketcher.Constraint("Equal", 4, 8),
    Sketcher.Constraint("Equal", 12, 16),
    Sketcher.Constraint("Equal", 20, 24),
    Sketcher.Constraint("Equal", 28, 32),
    Sketcher.Constraint("Equal", 36, 40),
    Sketcher.Constraint("Equal", 44, 48),
    Sketcher.Constraint("Equal", 52, 56),
    Sketcher.Constraint("Equal", 6, 10),
    Sketcher.Constraint("Equal", 14, 18),
    Sketcher.Constraint("Equal", 22, 26),
    Sketcher.Constraint("Equal", 30, 34),
    Sketcher.Constraint("Equal", 38, 42),
    Sketcher.Constraint("Equal", 54, 58),
    Sketcher.Constraint("Radius", 1, Q("0.6 mm")),
    Sketcher.Constraint("DistanceX", 33, 3, -1, 1, Q("12.291999 mm")),
    Sketcher.Constraint("DistanceX", 41, 3, -1, 1, Q("9.984598 mm")),
    Sketcher.Constraint("DistanceX", 0, 2, 0, 1, Q("0.162134 mm")),
    Sketcher.Constraint("DistanceY", 2, 2, 2, 1, Q("1.239964 mm")),
    Sketcher.Constraint("DistanceY", -1, 1, 3, 3, Q("3.642772 mm")),
    Sketcher.Constraint("DistanceX", 5, 3, -1, 1, Q("16.774518 mm")),
    Sketcher.Constraint("DistanceX", 9, 3, -1, 1, Q("19.482831 mm")),
    Sketcher.Constraint("DistanceX", 17, 3, -1, 1, Q("14.70417 mm")),
    Sketcher.Constraint("DistanceY", -1, 1, 17, 3, Q("4.895191 mm")),
    Sketcher.Constraint("DistanceY", -1, 1, 25, 3, Q("0.619982 mm")),
    Sketcher.Constraint("DistanceX", -1, 1, 29, 3, Q("17.238411 mm")),
    Sketcher.Constraint("DistanceY", -1, 1, 35, 3, Q("3.660209 mm")),
    Sketcher.Constraint("DistanceY", -1, 1, 41, 3, Q("4.882372 mm")),
    Sketcher.Constraint("DistanceX", 53, 3, -1, 1, Q("7.622832 mm")),
    Sketcher.Constraint("DistanceX", 57, 3, -1, 1, Q("40.445772 mm")),
    Sketcher.Constraint("DistanceY", -1, 1, 57, 3, Q("4.935279 mm")),
    Sketcher.Constraint("DistanceY", -1, 1, 9, 3, Q("4.866086 mm")),
])
sketch5.setExpression("Constraints[142]", "Params.sketch5_radius")
pocket3 = doc.addObject("PartDesign::Pocket", "Pocket002")
body.addObject(pocket3)
pocket3.Profile = sketch5
pocket3.setExpression("Length", "Params.pocket3_length")

# Sketch on XY plane
sketch6 = doc.addObject("Sketcher::SketchObject", "Sketch005")
body.addObject(sketch6)
sketch6.AttachmentSupport = (doc.XY_Plane, [""])
sketch6.MapMode = "FlatFace"
sketch6.addGeometry([
    Part.LineSegment(Vector(-29.012473, 102.092998, 0), Vector(-25.012473, 102.092998, 0)),  # 0
    Part.ArcOfCircle(Part.Circle(Vector(-25.012473, 101.592998, 0), Vector(0, 0, 1), 0.5), math.radians(0), math.radians(90)),  # 1
    Part.LineSegment(Vector(-24.512473, 101.592998, 0), Vector(-24.512473, 97.592998, 0)),  # 2
    Part.ArcOfCircle(Part.Circle(Vector(-25.012473, 97.592998, 0), Vector(0, 0, 1), 0.5), math.radians(-90), math.radians(0)),  # 3
    Part.LineSegment(Vector(-25.012473, 97.092998, 0), Vector(-29.012473, 97.092998, 0)),  # 4
    Part.ArcOfCircle(Part.Circle(Vector(-29.012473, 97.592998, 0), Vector(0, 0, 1), 0.5), math.radians(180), math.radians(270)),  # 5
    Part.LineSegment(Vector(-29.512473, 97.592998, 0), Vector(-29.512473, 101.592998, 0)),  # 6
    Part.ArcOfCircle(Part.Circle(Vector(-29.012473, 101.592998, 0), Vector(0, 0, 1), 0.5), math.radians(90), math.radians(180)),  # 7
    Part.LineSegment(Vector(-28.948975, 111.702723, 0), Vector(-24.948975, 111.702723, 0)),  # 8
    Part.ArcOfCircle(Part.Circle(Vector(-24.948975, 111.202723, 0), Vector(0, 0, 1), 0.5), math.radians(0), math.radians(90)),  # 9
    Part.LineSegment(Vector(-24.448975, 111.202723, 0), Vector(-24.448975, 107.202723, 0)),  # 10
    Part.ArcOfCircle(Part.Circle(Vector(-24.948975, 107.202723, 0), Vector(0, 0, 1), 0.5), math.radians(-90), math.radians(0)),  # 11
    Part.LineSegment(Vector(-24.948975, 106.702723, 0), Vector(-28.948975, 106.702723, 0)),  # 12
    Part.ArcOfCircle(Part.Circle(Vector(-28.948975, 107.202723, 0), Vector(0, 0, 1), 0.5), math.radians(180), math.radians(270)),  # 13
    Part.LineSegment(Vector(-29.448975, 107.202723, 0), Vector(-29.448975, 111.202723, 0)),  # 14
    Part.ArcOfCircle(Part.Circle(Vector(-28.948975, 111.202723, 0), Vector(0, 0, 1), 0.5), math.radians(90), math.radians(180)),  # 15
], False)
sketch6.addConstraint([
    Sketcher.Constraint("Tangent", 0, 2, 1, 2),
    Sketcher.Constraint("Tangent", 1, 1, 2, 1),
    Sketcher.Constraint("Tangent", 2, 2, 3, 2),
    Sketcher.Constraint("Tangent", 3, 1, 4, 1),
    Sketcher.Constraint("Tangent", 4, 2, 5, 2),
    Sketcher.Constraint("Tangent", 5, 1, 6, 1),
    Sketcher.Constraint("Tangent", 6, 2, 7, 2),
    Sketcher.Constraint("Tangent", 7, 1, 0, 1),
    Sketcher.Constraint("Tangent", 8, 2, 9, 2),
    Sketcher.Constraint("Tangent", 9, 1, 10, 1),
    Sketcher.Constraint("Tangent", 10, 2, 11, 2),
    Sketcher.Constraint("Tangent", 11, 1, 12, 1),
    Sketcher.Constraint("Tangent", 12, 2, 13, 2),
    Sketcher.Constraint("Tangent", 13, 1, 14, 1),
    Sketcher.Constraint("Tangent", 14, 2, 15, 2),
    Sketcher.Constraint("Tangent", 15, 1, 8, 1),
    Sketcher.Constraint("Horizontal", 0),
    Sketcher.Constraint("Vertical", 2),
    Sketcher.Constraint("Horizontal", 4),
    Sketcher.Constraint("Vertical", 6),
    Sketcher.Constraint("Horizontal", 8),
    Sketcher.Constraint("Vertical", 10),
    Sketcher.Constraint("Horizontal", 12),
    Sketcher.Constraint("Vertical", 14),
    Sketcher.Constraint("Equal", 1, 3),
    Sketcher.Constraint("Equal", 3, 5),
    Sketcher.Constraint("Equal", 5, 7),
    Sketcher.Constraint("Equal", 7, 9),
    Sketcher.Constraint("Equal", 9, 11),
    Sketcher.Constraint("Equal", 11, 13),
    Sketcher.Constraint("Equal", 13, 15),
    Sketcher.Constraint("Equal", 4, 8),
    Sketcher.Constraint("Equal", 12, 2),
    Sketcher.Constraint("Equal", 6, 10),
    Sketcher.Constraint("Radius", 1, Q("0.5 mm")),
    Sketcher.Constraint("DistanceX", 0, 1, 0, 2, Q("4 mm")),
    Sketcher.Constraint("DistanceY", -1, 1, 1, 3, Q("101.592998 mm")),
    Sketcher.Constraint("DistanceX", 1, 3, -1, 1, Q("25.012473 mm")),
    Sketcher.Constraint("DistanceX", 9, 3, -1, 1, Q("24.948975 mm")),
    Sketcher.Constraint("DistanceY", -1, 1, 9, 3, Q("111.202723 mm")),
])
sketch6.setExpression("Constraints[34]", "Params.sketch6_radius")
sketch6.setExpression("Constraints[35]", "Params.sketch6_width")
pocket4 = doc.addObject("PartDesign::Pocket", "Pocket003")
body.addObject(pocket4)
pocket4.Profile = sketch6
pocket4.setExpression("Length", "Params.pocket4_length")
pocket4.Reversed = True

doc.recompute()
